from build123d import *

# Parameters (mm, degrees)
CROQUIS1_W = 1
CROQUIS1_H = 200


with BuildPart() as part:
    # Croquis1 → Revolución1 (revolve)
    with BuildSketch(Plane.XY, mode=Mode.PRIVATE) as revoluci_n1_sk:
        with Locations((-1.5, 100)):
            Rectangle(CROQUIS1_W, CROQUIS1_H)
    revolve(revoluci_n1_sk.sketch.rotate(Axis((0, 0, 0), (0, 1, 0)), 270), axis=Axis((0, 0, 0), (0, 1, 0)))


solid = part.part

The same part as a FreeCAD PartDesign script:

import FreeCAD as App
import Part
import Sketcher
from FreeCAD import Vector


def add_polygon(sketch, points):
    """Adds a closed chain of lines whose ends are joined by coincident constraints."""
    first, n = sketch.GeometryCount, len(points)
    for a, b in zip(points, points[1:] + points[:1]):
        sketch.addGeometry(Part.LineSegment(App.Vector(*a, 0), App.Vector(*b, 0)), False)
    for i in range(n):
        sketch.addConstraint(Sketcher.Constraint("Coincident", first + i, 2, first + (i + 1) % n, 1))

doc = App.newDocument("Part")
body = doc.addObject("PartDesign::Body", "Body")

# Sketch on XY plane
sketch1 = doc.addObject("Sketcher::SketchObject", "Sketch")
body.addObject(sketch1)
sketch1.AttachmentSupport = (doc.XY_Plane, [""])
sketch1.MapMode = "FlatFace"
add_polygon(sketch1, [(-2, 200), (-2, 0), (-1, 0), (-1, 200)])  # lines 0-3
sketch1.addConstraint([
    Sketcher.Constraint("Vertical", 0),
    Sketcher.Constraint("Horizontal", 1),
    Sketcher.Constraint("Vertical", 2),
    Sketcher.Constraint("Horizontal", 3),
    Sketcher.Constraint("PointOnObject", 0, 2, -1),
    Sketcher.Constraint("DistanceX", 1, 1, 1, 2, 1.0),
    Sketcher.Constraint("DistanceY", 0, 2, 0, 1, 200.0),
    Sketcher.Constraint("DistanceX", 0, 2, -1, 1, 2.0),
])
revolution = doc.addObject("PartDesign::Revolution", "Revolution")
body.addObject(revolution)
revolution.Profile = sketch1
revolution.ReferenceAxis = (sketch1, ["V_Axis"])
revolution.Angle = 360

doc.recompute()
